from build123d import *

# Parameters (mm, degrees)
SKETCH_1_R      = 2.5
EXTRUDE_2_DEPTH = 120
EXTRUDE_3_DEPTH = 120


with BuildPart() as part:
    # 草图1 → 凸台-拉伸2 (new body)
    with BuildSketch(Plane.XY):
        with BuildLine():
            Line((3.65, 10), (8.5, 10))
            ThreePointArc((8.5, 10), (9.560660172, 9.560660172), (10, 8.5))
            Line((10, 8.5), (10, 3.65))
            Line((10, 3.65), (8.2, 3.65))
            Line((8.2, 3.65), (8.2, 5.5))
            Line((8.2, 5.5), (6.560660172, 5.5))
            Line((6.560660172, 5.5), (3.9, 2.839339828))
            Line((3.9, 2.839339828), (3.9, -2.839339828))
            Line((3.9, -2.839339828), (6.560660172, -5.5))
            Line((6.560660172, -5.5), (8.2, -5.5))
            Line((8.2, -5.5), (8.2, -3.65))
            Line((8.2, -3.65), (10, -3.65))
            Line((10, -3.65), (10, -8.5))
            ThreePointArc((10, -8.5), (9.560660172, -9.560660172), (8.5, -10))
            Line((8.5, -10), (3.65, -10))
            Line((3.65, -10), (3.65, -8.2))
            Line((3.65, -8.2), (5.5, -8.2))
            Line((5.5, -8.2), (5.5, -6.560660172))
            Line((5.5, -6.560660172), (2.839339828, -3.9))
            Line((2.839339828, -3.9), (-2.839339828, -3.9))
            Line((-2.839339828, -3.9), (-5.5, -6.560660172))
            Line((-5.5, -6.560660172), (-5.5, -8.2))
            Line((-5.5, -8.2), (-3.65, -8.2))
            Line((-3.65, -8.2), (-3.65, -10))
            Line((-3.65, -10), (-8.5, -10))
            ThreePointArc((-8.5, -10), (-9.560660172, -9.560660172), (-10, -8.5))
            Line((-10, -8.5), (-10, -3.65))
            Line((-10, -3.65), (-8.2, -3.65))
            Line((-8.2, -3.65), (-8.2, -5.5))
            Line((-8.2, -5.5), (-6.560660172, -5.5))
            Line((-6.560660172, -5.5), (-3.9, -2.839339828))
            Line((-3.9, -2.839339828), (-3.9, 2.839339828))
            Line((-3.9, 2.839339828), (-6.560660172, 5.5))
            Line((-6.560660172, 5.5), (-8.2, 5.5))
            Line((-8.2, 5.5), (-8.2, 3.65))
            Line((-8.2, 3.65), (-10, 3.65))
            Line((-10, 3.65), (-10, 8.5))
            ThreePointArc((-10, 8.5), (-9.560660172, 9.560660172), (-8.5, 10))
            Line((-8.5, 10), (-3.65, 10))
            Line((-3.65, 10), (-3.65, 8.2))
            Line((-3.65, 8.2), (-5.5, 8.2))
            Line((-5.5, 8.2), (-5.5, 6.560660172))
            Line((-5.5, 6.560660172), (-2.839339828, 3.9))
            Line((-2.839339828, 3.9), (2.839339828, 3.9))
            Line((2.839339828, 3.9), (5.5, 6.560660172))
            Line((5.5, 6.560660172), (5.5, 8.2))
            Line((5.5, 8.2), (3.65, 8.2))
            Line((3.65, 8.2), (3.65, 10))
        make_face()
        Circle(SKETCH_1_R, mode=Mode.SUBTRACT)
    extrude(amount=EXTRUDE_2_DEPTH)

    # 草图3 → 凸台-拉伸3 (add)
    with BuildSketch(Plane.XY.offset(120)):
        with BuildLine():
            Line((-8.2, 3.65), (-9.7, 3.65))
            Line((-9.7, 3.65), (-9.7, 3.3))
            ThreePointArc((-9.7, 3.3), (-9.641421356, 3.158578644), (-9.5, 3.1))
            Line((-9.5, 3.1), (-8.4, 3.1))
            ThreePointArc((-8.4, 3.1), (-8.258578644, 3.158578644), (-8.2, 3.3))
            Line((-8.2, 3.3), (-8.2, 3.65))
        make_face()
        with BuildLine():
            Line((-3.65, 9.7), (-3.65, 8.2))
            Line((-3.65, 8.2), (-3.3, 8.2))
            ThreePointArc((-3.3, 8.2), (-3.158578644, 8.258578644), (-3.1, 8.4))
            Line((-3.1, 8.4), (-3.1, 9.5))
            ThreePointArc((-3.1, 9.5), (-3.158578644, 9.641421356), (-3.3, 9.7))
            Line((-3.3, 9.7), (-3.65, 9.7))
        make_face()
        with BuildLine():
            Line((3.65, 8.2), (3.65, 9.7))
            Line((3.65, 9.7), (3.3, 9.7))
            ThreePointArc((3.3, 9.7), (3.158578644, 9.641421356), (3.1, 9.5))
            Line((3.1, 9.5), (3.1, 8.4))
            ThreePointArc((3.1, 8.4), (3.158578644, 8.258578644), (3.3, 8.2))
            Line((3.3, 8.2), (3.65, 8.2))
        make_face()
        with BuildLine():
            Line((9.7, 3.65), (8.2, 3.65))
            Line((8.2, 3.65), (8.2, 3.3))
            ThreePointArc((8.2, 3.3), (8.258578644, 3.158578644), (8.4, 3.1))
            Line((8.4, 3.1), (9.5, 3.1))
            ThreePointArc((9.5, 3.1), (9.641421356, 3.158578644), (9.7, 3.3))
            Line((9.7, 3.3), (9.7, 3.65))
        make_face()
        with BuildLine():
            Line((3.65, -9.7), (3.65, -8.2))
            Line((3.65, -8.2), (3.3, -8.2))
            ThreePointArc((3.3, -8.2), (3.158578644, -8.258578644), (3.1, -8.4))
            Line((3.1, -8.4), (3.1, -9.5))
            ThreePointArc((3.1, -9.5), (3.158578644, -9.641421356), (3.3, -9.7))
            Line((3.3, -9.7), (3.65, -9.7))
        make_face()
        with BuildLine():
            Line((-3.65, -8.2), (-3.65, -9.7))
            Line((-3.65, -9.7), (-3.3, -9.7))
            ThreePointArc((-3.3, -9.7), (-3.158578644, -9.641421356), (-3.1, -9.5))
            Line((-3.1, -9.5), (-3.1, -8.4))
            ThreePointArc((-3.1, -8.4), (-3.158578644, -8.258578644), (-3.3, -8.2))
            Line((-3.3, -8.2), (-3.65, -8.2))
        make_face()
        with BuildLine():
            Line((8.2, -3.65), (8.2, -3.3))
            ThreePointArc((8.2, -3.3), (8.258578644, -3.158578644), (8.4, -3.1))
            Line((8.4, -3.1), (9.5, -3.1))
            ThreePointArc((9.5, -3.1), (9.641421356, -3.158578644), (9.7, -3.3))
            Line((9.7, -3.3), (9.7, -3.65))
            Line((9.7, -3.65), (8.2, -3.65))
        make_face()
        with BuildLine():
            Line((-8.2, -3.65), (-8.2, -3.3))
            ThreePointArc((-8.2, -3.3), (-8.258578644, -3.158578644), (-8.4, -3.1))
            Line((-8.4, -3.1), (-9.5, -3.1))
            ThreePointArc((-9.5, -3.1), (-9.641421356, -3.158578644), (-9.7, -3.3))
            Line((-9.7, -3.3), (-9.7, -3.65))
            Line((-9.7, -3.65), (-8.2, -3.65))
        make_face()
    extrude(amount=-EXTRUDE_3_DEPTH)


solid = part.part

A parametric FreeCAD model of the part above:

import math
import FreeCAD as App
import Part
import Sketcher
Q = App.Units.Quantity

doc = App.newDocument("Part")
params = doc.addObject("Spreadsheet::Sheet", "Params")
for row, (alias, value) in enumerate([
    ("sketch1_diameter", "5 mm"),
    ("sketch1_radius", "1.5 mm"),
    ("sketch1_width", "1.8 mm"),
    ("sketch1_width2", "4.85 mm"),
    ("pad1_length", "120 mm"),
    ("sketch2_radius", "0.2 mm"),
    ("sketch2_width", "1.5 mm"),
    ("sketch2_width2", "0.35 mm"),
    ("pad2_length", "120 mm"),
], start=1):
    params.set(f"A{row}", alias)
    params.set(f"B{row}", "=" + value)
    params.setAlias(f"B{row}", alias)

body = doc.addObject("PartDesign::Body", "Body")

sketch1 = doc.addObject("Sketcher::SketchObject", "Sketch")
body.addObject(sketch1)
sketch1.AttachmentSupport = (doc.XY_Plane, [""])
sketch1.MapMode = "FlatFace"
sketch1.addGeometry([
    Part.LineSegment(App.Vector(8.5, 10, 0), App.Vector(3.6, 10, 0)),
    Part.LineSegment(App.Vector(3.6, 10, 0), App.Vector(3.6, 8.2, 0)),
    Part.LineSegment(App.Vector(3.6, 8.2, 0), App.Vector(5.5, 8.2, 0)),
    Part.LineSegment(App.Vector(5.5, 8.2, 0), App.Vector(5.5, 6.6, 0)),
    Part.LineSegment(App.Vector(5.5, 6.6, 0), App.Vector(2.8, 3.9, 0)),
    Part.LineSegment(App.Vector(2.8, 3.9, 0), App.Vector(-2.8, 3.9, 0)),
    Part.LineSegment(App.Vector(-2.8, 3.9, 0), App.Vector(-5.5, 6.6, 0)),
    Part.LineSegment(App.Vector(-5.5, 6.6, 0), App.Vector(-5.5, 8.2, 0)),
    Part.LineSegment(App.Vector(-5.5, 8.2, 0), App.Vector(-3.6, 8.2, 0)),
    Part.LineSegment(App.Vector(-3.6, 8.2, 0), App.Vector(-3.6, 10, 0)),
    Part.LineSegment(App.Vector(-3.6, 10, 0), App.Vector(-8.5, 10, 0)),
    Part.ArcOfCircle(Part.Circle(App.Vector(-8.5, 8.5, 0), App.Vector(0, 0, 1), 1.5), math.radians(90), math.radians(180)),
    Part.LineSegment(App.Vector(-10, 8.5, 0), App.Vector(-10, 3.6, 0)),
    Part.LineSegment(App.Vector(-10, 3.6, 0), App.Vector(-8.2, 3.6, 0)),
    Part.LineSegment(App.Vector(-8.2, 3.6, 0), App.Vector(-8.2, 5.5, 0)),
    Part.LineSegment(App.Vector(-8.2, 5.5, 0), App.Vector(-6.6, 5.5, 0)),
    Part.LineSegment(App.Vector(-6.6, 5.5, 0), App.Vector(-3.9, 2.8, 0)),
    Part.LineSegment(App.Vector(-3.9, 2.8, 0), App.Vector(-3.9, -2.8, 0)),
    Part.LineSegment(App.Vector(-3.9, -2.8, 0), App.Vector(-6.6, -5.5, 0)),
    Part.LineSegment(App.Vector(-6.6, -5.5, 0), App.Vector(-8.2, -5.5, 0)),
    Part.LineSegment(App.Vector(-8.2, -5.5, 0), App.Vector(-8.2, -3.6, 0)),
    Part.LineSegment(App.Vector(-8.2, -3.6, 0), App.Vector(-10, -3.6, 0)),
    Part.LineSegment(App.Vector(-10, -3.6, 0), App.Vector(-10, -8.5, 0)),
    Part.ArcOfCircle(Part.Circle(App.Vector(-8.5, -8.5, 0), App.Vector(0, 0, 1), 1.5), math.radians(180), math.radians(270)),
    Part.LineSegment(App.Vector(-8.5, -10, 0), App.Vector(-3.6, -10, 0)),
    Part.LineSegment(App.Vector(-3.6, -10, 0), App.Vector(-3.6, -8.2, 0)),
    Part.LineSegment(App.Vector(-3.6, -8.2, 0), App.Vector(-5.5, -8.2, 0)),
    Part.LineSegment(App.Vector(-5.5, -8.2, 0), App.Vector(-5.5, -6.6, 0)),
    Part.LineSegment(App.Vector(-5.5, -6.6, 0), App.Vector(-2.8, -3.9, 0)),
    Part.LineSegment(App.Vector(-2.8, -3.9, 0), App.Vector(2.8, -3.9, 0)),
    Part.LineSegment(App.Vector(2.8, -3.9, 0), App.Vector(5.5, -6.6, 0)),
    Part.LineSegment(App.Vector(5.5, -6.6, 0), App.Vector(5.5, -8.2, 0)),
    Part.LineSegment(App.Vector(5.5, -8.2, 0), App.Vector(3.6, -8.2, 0)),
    Part.LineSegment(App.Vector(3.6, -8.2, 0), App.Vector(3.6, -10, 0)),
    Part.LineSegment(App.Vector(3.6, -10, 0), App.Vector(8.5, -10, 0)),
    Part.ArcOfCircle(Part.Circle(App.Vector(8.5, -8.5, 0), App.Vector(0, 0, 1), 1.5), math.radians(-90), math.radians(0)),
    Part.LineSegment(App.Vector(10, -8.5, 0), App.Vector(10, -3.6, 0)),
    Part.LineSegment(App.Vector(10, -3.6, 0), App.Vector(8.2, -3.6, 0)),
    Part.LineSegment(App.Vector(8.2, -3.6, 0), App.Vector(8.2, -5.5, 0)),
    Part.LineSegment(App.Vector(8.2, -5.5, 0), App.Vector(6.6, -5.5, 0)),
    Part.LineSegment(App.Vector(6.6, -5.5, 0), App.Vector(3.9, -2.8, 0)),
    Part.LineSegment(App.Vector(3.9, -2.8, 0), App.Vector(3.9, 2.8, 0)),
    Part.LineSegment(App.Vector(3.9, 2.8, 0), App.Vector(6.6, 5.5, 0)),
    Part.LineSegment(App.Vector(6.6, 5.5, 0), App.Vector(8.2, 5.5, 0)),
    Part.LineSegment(App.Vector(8.2, 5.5, 0), App.Vector(8.2, 3.6, 0)),
    Part.LineSegment(App.Vector(8.2, 3.6, 0), App.Vector(10, 3.6, 0)),
    Part.LineSegment(App.Vector(10, 3.6, 0), App.Vector(10, 8.5, 0)),
    Part.ArcOfCircle(Part.Circle(App.Vector(8.5, 8.5, 0), App.Vector(0, 0, 1), 1.5), math.radians(0), math.radians(90)),
    Part.Circle(App.Vector(0, 0, 0), App.Vector(0, 0, 1), 2.5),
], False)
sketch1.addConstraint([
    Sketcher.Constraint("Coincident", 0, 2, 1, 1),
    Sketcher.Constraint("Coincident", 1, 2, 2, 1),
    Sketcher.Constraint("Coincident", 2, 2, 3, 1),
    Sketcher.Constraint("Coincident", 3, 2, 4, 1),
    Sketcher.Constraint("Coincident", 4, 2, 5, 1),
    Sketcher.Constraint("Coincident", 5, 2, 6, 1),
    Sketcher.Constraint("Coincident", 6, 2, 7, 1),
    Sketcher.Constraint("Coincident", 7, 2, 8, 1),
    Sketcher.Constraint("Coincident", 8, 2, 9, 1),
    Sketcher.Constraint("Coincident", 9, 2, 10, 1),
    Sketcher.Constraint("Tangent", 10, 2, 11, 1),
    Sketcher.Constraint("Tangent", 11, 2, 12, 1),
    Sketcher.Constraint("Coincident", 12, 2, 13, 1),
    Sketcher.Constraint("Coincident", 13, 2, 14, 1),
    Sketcher.Constraint("Coincident", 14, 2, 15, 1),
    Sketcher.Constraint("Coincident", 15, 2, 16, 1),
    Sketcher.Constraint("Coincident", 16, 2, 17, 1),
    Sketcher.Constraint("Coincident", 17, 2, 18, 1),
    Sketcher.Constraint("Coincident", 18, 2, 19, 1),
    Sketcher.Constraint("Coincident", 19, 2, 20, 1),
    Sketcher.Constraint("Coincident", 20, 2, 21, 1),
    Sketcher.Constraint("Coincident", 21, 2, 22, 1),
    Sketcher.Constraint("Tangent", 22, 2, 23, 1),
    Sketcher.Constraint("Tangent", 23, 2, 24, 1),
    Sketcher.Constraint("Coincident", 24, 2, 25, 1),
    Sketcher.Constraint("Coincident", 25, 2, 26, 1),
    Sketcher.Constraint("Coincident", 26, 2, 27, 1),
    Sketcher.Constraint("Coincident", 27, 2, 28, 1),
    Sketcher.Constraint("Coincident", 28, 2, 29, 1),
    Sketcher.Constraint("Coincident", 29, 2, 30, 1),
    Sketcher.Constraint("Coincident", 30, 2, 31, 1),
    Sketcher.Constraint("Coincident", 31, 2, 32, 1),
    Sketcher.Constraint("Coincident", 32, 2, 33, 1),
    Sketcher.Constraint("Coincident", 33, 2, 34, 1),
    Sketcher.Constraint("Tangent", 34, 2, 35, 1),
    Sketcher.Constraint("Tangent", 35, 2, 36, 1),
    Sketcher.Constraint("Coincident", 36, 2, 37, 1),
    Sketcher.Constraint("Coincident", 37, 2, 38, 1),
    Sketcher.Constraint("Coincident", 38, 2, 39, 1),
    Sketcher.Constraint("Coincident", 39, 2, 40, 1),
    Sketcher.Constraint("Coincident", 40, 2, 41, 1),
    Sketcher.Constraint("Coincident", 41, 2, 42, 1),
    Sketcher.Constraint("Coincident", 42, 2, 43, 1),
    Sketcher.Constraint("Coincident", 43, 2, 44, 1),
    Sketcher.Constraint("Coincident", 44, 2, 45, 1),
    Sketcher.Constraint("Coincident", 45, 2, 46, 1),
    Sketcher.Constraint("Tangent", 46, 2, 47, 1),
    Sketcher.Constraint("Tangent", 47, 2, 0, 1),
    Sketcher.Constraint("Horizontal", 0),
    Sketcher.Constraint("Vertical", 1),
    Sketcher.Constraint("Horizontal", 2),
    Sketcher.Constraint("Vertical", 3),
    Sketcher.Constraint("Horizontal", 5),
    Sketcher.Constraint("Vertical", 7),
    Sketcher.Constraint("Horizontal", 8),
    Sketcher.Constraint("Vertical", 9),
    Sketcher.Constraint("Horizontal", 10),
    Sketcher.Constraint("Vertical", 12),
    Sketcher.Constraint("Horizontal", 13),
    Sketcher.Constraint("Vertical", 14),
    Sketcher.Constraint("Horizontal", 15),
    Sketcher.Constraint("Vertical", 17),
    Sketcher.Constraint("Horizontal", 19),
    Sketcher.Constraint("Vertical", 20),
    Sketcher.Constraint("Horizontal", 21),
    Sketcher.Constraint("Vertical", 22),
    Sketcher.Constraint("Horizontal", 24),
    Sketcher.Constraint("Vertical", 25),
    Sketcher.Constraint("Horizontal", 26),
    Sketcher.Constraint("Vertical", 27),
    Sketcher.Constraint("Horizontal", 29),
    Sketcher.Constraint("Vertical", 31),
    Sketcher.Constraint("Horizontal", 32),
    Sketcher.Constraint("Vertical", 33),
    Sketcher.Constraint("Horizontal", 34),
    Sketcher.Constraint("Vertical", 36),
    Sketcher.Constraint("Horizontal", 37),
    Sketcher.Constraint("Vertical", 38),
    Sketcher.Constraint("Horizontal", 39),
    Sketcher.Constraint("Vertical", 41),
    Sketcher.Constraint("Horizontal", 43),
    Sketcher.Constraint("Vertical", 44),
    Sketcher.Constraint("Horizontal", 45),
    Sketcher.Constraint("Vertical", 46),
    Sketcher.Constraint("Coincident", 48, 3, -1, 1),
    Sketcher.Constraint("Equal", 11, 23),
    Sketcher.Constraint("Equal", 23, 35),
    Sketcher.Constraint("Equal", 35, 47),
    Sketcher.Constraint("Symmetric", 11, 3, 35, 3, -1, 1),
    Sketcher.Constraint("Symmetric", 23, 3, 47, 3, -1, 1),
    Sketcher.Constraint("Symmetric", 1, 2, 25, 2, -1, 1),
    Sketcher.Constraint("Symmetric", 3, 2, 27, 2, -1, 1),
    Sketcher.Constraint("Symmetric", 4, 2, 28, 2, -1, 1),
    Sketcher.Constraint("Symmetric", 6, 2, 30, 2, -1, 1),
    Sketcher.Constraint("Symmetric", 8, 2, 32, 2, -1, 1),
    Sketcher.Constraint("Symmetric", 13, 2, 37, 2, -1, 1),
    Sketcher.Constraint("Symmetric", 15, 2, 39, 2, -1, 1),
    Sketcher.Constraint("Symmetric", 16, 2, 40, 2, -1, 1),
    Sketcher.Constraint("Symmetric", 18, 2, 42, 2, -1, 1),
    Sketcher.Constraint("Symmetric", 20, 2, 44, 2, -1, 1),
    Sketcher.Constraint("Symmetric", 23, 3, 35, 3, -2),
    Sketcher.Constraint("Symmetric", 3, 2, 6, 2, -2),
    Sketcher.Constraint("Symmetric", 1, 2, 8, 2, -2),
    Sketcher.Constraint("Symmetric", 20, 2, 37, 2, -2),
    Sketcher.Constraint("Symmetric", 18, 2, 39, 2, -2),
    Sketcher.Constraint("Perpendicular", 4, 6),
    Sketcher.Constraint("Parallel", 6, 16),
    Sketcher.Constraint("Perpendicular", 16, 18),
    Sketcher.Constraint("Perpendicular", 28, 30),
    Sketcher.Constraint("Perpendicular", 40, 42),
    Sketcher.Constraint("Horizontal", 17, 2, 40, 2),
    Sketcher.Constraint("Equal", 45, 1),
    Sketcher.Constraint("Equal", 43, 3),
    Sketcher.Constraint("Equal", 34, 12),
    Sketcher.Constraint("Equal", 32, 14),
    Sketcher.Constraint("Equal", 29, 17),
    Sketcher.Constraint("Equal", 6, 16),
    Sketcher.Constraint("Diameter", 48, Q("5 mm")),
    Sketcher.Constraint("Radius", 11, Q("1.5 mm")),
    Sketcher.Constraint("DistanceX", 13, 1, 13, 2, Q("1.8 mm")),
    Sketcher.Constraint("DistanceY", -1, 1, 0, 2, Q("10 mm")),
    Sketcher.Constraint("DistanceX", 2, 2, 47, 3, Q("3 mm")),
    Sketcher.Constraint("DistanceX", 0, 2, 0, 1, Q("4.85 mm")),
    Sketcher.Constraint("DistanceY", -1, 1, 4, 2, Q("3.9 mm")),
    Sketcher.Constraint("DistanceX", 5, 2, 5, 1, Q("5.67868 mm")),
])
sketch1.setExpression("Constraints[117]", "Params.sketch1_diameter")
sketch1.setExpression("Constraints[118]", "Params.sketch1_radius")
sketch1.setExpression("Constraints[119]", "Params.sketch1_width")
sketch1.setExpression("Constraints[122]", "Params.sketch1_width2")
pad1 = doc.addObject("PartDesign::Pad", "Pad")
body.addObject(pad1)
pad1.Profile = sketch1
pad1.setExpression("Length", "Params.pad1_length")

sketch2 = doc.addObject("Sketcher::SketchObject", "Sketch001")
body.addObject(sketch2)
sketch2.AttachmentSupport = (doc.XY_Plane, [""])
sketch2.MapMode = "FlatFace"
sketch2.AttachmentOffset = App.Placement(App.Vector(0, 0, 120), App.Rotation())
sketch2.addGeometry([
    Part.LineSegment(App.Vector(-8.2, 3.65, 0), App.Vector(-9.7, 3.65, 0)),
    Part.LineSegment(App.Vector(-9.7, 3.65, 0), App.Vector(-9.7, 3.3, 0)),
    Part.ArcOfCircle(Part.Circle(App.Vector(-9.5, 3.3, 0), App.Vector(0, 0, 1), 0.2), math.radians(-180), math.radians(-90)),
    Part.LineSegment(App.Vector(-9.5, 3.1, 0), App.Vector(-8.4, 3.1, 0)),
    Part.ArcOfCircle(Part.Circle(App.Vector(-8.4, 3.3, 0), App.Vector(0, 0, 1), 0.2), math.radians(-90), math.radians(0)),
    Part.LineSegment(App.Vector(-8.2, 3.3, 0), App.Vector(-8.2, 3.65, 0)),
    Part.LineSegment(App.Vector(-3.65, 9.7, 0), App.Vector(-3.65, 8.2, 0)),
    Part.LineSegment(App.Vector(-3.65, 8.2, 0), App.Vector(-3.3, 8.2, 0)),
    Part.ArcOfCircle(Part.Circle(App.Vector(-3.3, 8.4, 0), App.Vector(0, 0, 1), 0.2), math.radians(-90), math.radians(0)),
    Part.LineSegment(App.Vector(-3.1, 8.4, 0), App.Vector(-3.1, 9.5, 0)),
    Part.ArcOfCircle(Part.Circle(App.Vector(-3.3, 9.5, 0), App.Vector(0, 0, 1), 0.2), math.radians(0), math.radians(90)),
    Part.LineSegment(App.Vector(-3.3, 9.7, 0), App.Vector(-3.65, 9.7, 0)),
    Part.LineSegment(App.Vector(3.65, 8.2, 0), App.Vector(3.65, 9.7, 0)),
    Part.LineSegment(App.Vector(3.65, 9.7, 0), App.Vector(3.3, 9.7, 0)),
    Part.ArcOfCircle(Part.Circle(App.Vector(3.3, 9.5, 0), App.Vector(0, 0, 1), 0.2), math.radians(90), math.radians(180)),
    Part.LineSegment(App.Vector(3.1, 9.5, 0), App.Vector(3.1, 8.4, 0)),
    Part.ArcOfCircle(Part.Circle(App.Vector(3.3, 8.4, 0), App.Vector(0, 0, 1), 0.2), math.radians(-180), math.radians(-90)),
    Part.LineSegment(App.Vector(3.3, 8.2, 0), App.Vector(3.65, 8.2, 0)),
    Part.LineSegment(App.Vector(9.7, 3.65, 0), App.Vector(8.2, 3.65, 0)),
    Part.LineSegment(App.Vector(8.2, 3.65, 0), App.Vector(8.2, 3.3, 0)),
    Part.ArcOfCircle(Part.Circle(App.Vector(8.4, 3.3, 0), App.Vector(0, 0, 1), 0.2), math.radians(-180), math.radians(-90)),
    Part.LineSegment(App.Vector(8.4, 3.1, 0), App.Vector(9.5, 3.1, 0)),
    Part.ArcOfCircle(Part.Circle(App.Vector(9.5, 3.3, 0), App.Vector(0, 0, 1), 0.2), math.radians(-90), math.radians(0)),
    Part.LineSegment(App.Vector(9.7, 3.3, 0), App.Vector(9.7, 3.65, 0)),
    Part.LineSegment(App.Vector(3.65, -9.7, 0), App.Vector(3.65, -8.2, 0)),
    Part.LineSegment(App.Vector(3.65, -8.2, 0), App.Vector(3.3, -8.2, 0)),
    Part.ArcOfCircle(Part.Circle(App.Vector(3.3, -8.4, 0), App.Vector(0, 0, 1), 0.2), math.radians(90), math.radians(180)),
    Part.LineSegment(App.Vector(3.1, -8.4, 0), App.Vector(3.1, -9.5, 0)),
    Part.ArcOfCircle(Part.Circle(App.Vector(3.3, -9.5, 0), App.Vector(0, 0, 1), 0.2), math.radians(-180), math.radians(-90)),
    Part.LineSegment(App.Vector(3.3, -9.7, 0), App.Vector(3.65, -9.7, 0)),
    Part.LineSegment(App.Vector(-3.65, -8.2, 0), App.Vector(-3.65, -9.7, 0)),
    Part.LineSegment(App.Vector(-3.65, -9.7, 0), App.Vector(-3.3, -9.7, 0)),
    Part.ArcOfCircle(Part.Circle(App.Vector(-3.3, -9.5, 0), App.Vector(0, 0, 1), 0.2), math.radians(-90), math.radians(0)),
    Part.LineSegment(App.Vector(-3.1, -9.5, 0), App.Vector(-3.1, -8.4, 0)),
    Part.ArcOfCircle(Part.Circle(App.Vector(-3.3, -8.4, 0), App.Vector(0, 0, 1), 0.2), math.radians(0), math.radians(90)),
    Part.LineSegment(App.Vector(-3.3, -8.2, 0), App.Vector(-3.65, -8.2, 0)),
    Part.LineSegment(App.Vector(8.2, -3.3, 0), App.Vector(8.2, -3.65, 0)),
    Part.LineSegment(App.Vector(8.2, -3.65, 0), App.Vector(9.7, -3.65, 0)),
    Part.LineSegment(App.Vector(9.7, -3.65, 0), App.Vector(9.7, -3.3, 0)),
    Part.ArcOfCircle(Part.Circle(App.Vector(9.5, -3.3, 0), App.Vector(0, 0, 1), 0.2), math.radians(0), math.radians(90)),
    Part.LineSegment(App.Vector(9.5, -3.1, 0), App.Vector(8.4, -3.1, 0)),
    Part.ArcOfCircle(Part.Circle(App.Vector(8.4, -3.3, 0), App.Vector(0, 0, 1), 0.2), math.radians(90), math.radians(180)),
    Part.LineSegment(App.Vector(-8.2, -3.65, 0), App.Vector(-8.2, -3.3, 0)),
    Part.ArcOfCircle(Part.Circle(App.Vector(-8.4, -3.3, 0), App.Vector(0, 0, 1), 0.2), math.radians(0), math.radians(90)),
    Part.LineSegment(App.Vector(-8.4, -3.1, 0), App.Vector(-9.5, -3.1, 0)),
    Part.ArcOfCircle(Part.Circle(App.Vector(-9.5, -3.3, 0), App.Vector(0, 0, 1), 0.2), math.radians(90), math.radians(180)),
    Part.LineSegment(App.Vector(-9.7, -3.3, 0), App.Vector(-9.7, -3.65, 0)),
    Part.LineSegment(App.Vector(-9.7, -3.65, 0), App.Vector(-8.2, -3.65, 0)),
], False)
sketch2.addConstraint([
    Sketcher.Constraint("Coincident", 0, 2, 1, 1),
    Sketcher.Constraint("Tangent", 1, 2, 2, 1),
    Sketcher.Constraint("Tangent", 2, 2, 3, 1),
    Sketcher.Constraint("Tangent", 3, 2, 4, 1),
    Sketcher.Constraint("Tangent", 4, 2, 5, 1),
    Sketcher.Constraint("Coincident", 5, 2, 0, 1),
    Sketcher.Constraint("Coincident", 6, 2, 7, 1),
    Sketcher.Constraint("Tangent", 7, 2, 8, 1),
    Sketcher.Constraint("Tangent", 8, 2, 9, 1),
    Sketcher.Constraint("Tangent", 9, 2, 10, 1),
    Sketcher.Constraint("Tangent", 10, 2, 11, 1),
    Sketcher.Constraint("Coincident", 11, 2, 6, 1),
    Sketcher.Constraint("Coincident", 12, 2, 13, 1),
    Sketcher.Constraint("Tangent", 13, 2, 14, 1),
    Sketcher.Constraint("Tangent", 14, 2, 15, 1),
    Sketcher.Constraint("Tangent", 15, 2, 16, 1),
    Sketcher.Constraint("Tangent", 16, 2, 17, 1),
    Sketcher.Constraint("Coincident", 17, 2, 12, 1),
    Sketcher.Constraint("Coincident", 18, 2, 19, 1),
    Sketcher.Constraint("Tangent", 19, 2, 20, 1),
    Sketcher.Constraint("Tangent", 20, 2, 21, 1),
    Sketcher.Constraint("Tangent", 21, 2, 22, 1),
    Sketcher.Constraint("Tangent", 22, 2, 23, 1),
    Sketcher.Constraint("Coincident", 23, 2, 18, 1),
    Sketcher.Constraint("Coincident", 24, 2, 25, 1),
    Sketcher.Constraint("Tangent", 25, 2, 26, 1),
    Sketcher.Constraint("Tangent", 26, 2, 27, 1),
    Sketcher.Constraint("Tangent", 27, 2, 28, 1),
    Sketcher.Constraint("Tangent", 28, 2, 29, 1),
    Sketcher.Constraint("Coincident", 29, 2, 24, 1),
    Sketcher.Constraint("Coincident", 30, 2, 31, 1),
    Sketcher.Constraint("Tangent", 31, 2, 32, 1),
    Sketcher.Constraint("Tangent", 32, 2, 33, 1),
    Sketcher.Constraint("Tangent", 33, 2, 34, 1),
    Sketcher.Constraint("Tangent", 34, 2, 35, 1),
    Sketcher.Constraint("Coincident", 35, 2, 30, 1),
    Sketcher.Constraint("Coincident", 36, 2, 37, 1),
    Sketcher.Constraint("Coincident", 37, 2, 38, 1),
    Sketcher.Constraint("Tangent", 38, 2, 39, 1),
    Sketcher.Constraint("Tangent", 39, 2, 40, 1),
    Sketcher.Constraint("Tangent", 40, 2, 41, 1),
    Sketcher.Constraint("Tangent", 41, 2, 36, 1),
    Sketcher.Constraint("Tangent", 42, 2, 43, 1),
    Sketcher.Constraint("Tangent", 43, 2, 44, 1),
    Sketcher.Constraint("Tangent", 44, 2, 45, 1),
    Sketcher.Constraint("Tangent", 45, 2, 46, 1),
    Sketcher.Constraint("Coincident", 46, 2, 47, 1),
    Sketcher.Constraint("Coincident", 47, 2, 42, 1),
    Sketcher.Constraint("Horizontal", 0),
    Sketcher.Constraint("Vertical", 1),
    Sketcher.Constraint("Horizontal", 3),
    Sketcher.Constraint("Vertical", 5),
    Sketcher.Constraint("Vertical", 6),
    Sketcher.Constraint("Horizontal", 7),
    Sketcher.Constraint("Vertical", 9),
    Sketcher.Constraint("Horizontal", 11),
    Sketcher.Constraint("Vertical", 12),
    Sketcher.Constraint("Horizontal", 13),
    Sketcher.Constraint("Vertical", 15),
    Sketcher.Constraint("Horizontal", 17),
    Sketcher.Constraint("Horizontal", 18),
    Sketcher.Constraint("Vertical", 19),
    Sketcher.Constraint("Horizontal", 21),
    Sketcher.Constraint("Vertical", 23),
    Sketcher.Constraint("Vertical", 24),
    Sketcher.Constraint("Horizontal", 25),
    Sketcher.Constraint("Vertical", 27),
    Sketcher.Constraint("Horizontal", 29),
    Sketcher.Constraint("Vertical", 30),
    Sketcher.Constraint("Horizontal", 31),
    Sketcher.Constraint("Vertical", 33),
    Sketcher.Constraint("Horizontal", 35),
    Sketcher.Constraint("Vertical", 36),
    Sketcher.Constraint("Horizontal", 37),
    Sketcher.Constraint("Vertical", 38),
    Sketcher.Constraint("Horizontal", 40),
    Sketcher.Constraint("Vertical", 42),
    Sketcher.Constraint("Horizontal", 44),
    Sketcher.Constraint("Vertical", 46),
    Sketcher.Constraint("Horizontal", 47),
    Sketcher.Constraint("Equal", 2, 4),
    Sketcher.Constraint("Equal", 4, 8),
    Sketcher.Constraint("Equal", 8, 10),
    Sketcher.Constraint("Equal", 10, 14),
    Sketcher.Constraint("Equal", 14, 16),
    Sketcher.Constraint("Equal", 16, 20),
    Sketcher.Constraint("Equal", 20, 22),
    Sketcher.Constraint("Equal", 22, 26),
    Sketcher.Constraint("Equal", 26, 28),
    Sketcher.Constraint("Equal", 28, 32),
    Sketcher.Constraint("Equal", 32, 34),
    Sketcher.Constraint("Equal", 34, 39),
    Sketcher.Constraint("Equal", 39, 41),
    Sketcher.Constraint("Equal", 41, 43),
    Sketcher.Constraint("Equal", 43, 45),
    Sketcher.Constraint("Symmetric", 8, 3, 26, 3, -1, 1),
    Sketcher.Constraint("Symmetric", 14, 3, 32, 3, -1, 1),
    Sketcher.Constraint("Symmetric", 2, 3, 39, 3, -1, 1),
    Sketcher.Constraint("Symmetric", 20, 3, 43, 3, -1, 1),
    Sketcher.Constraint("Symmetric", 11, 2, 29, 2, -1, 1),
    Sketcher.Constraint("Symmetric", 17, 2, 35, 2, -1, 1),
    Sketcher.Constraint("Symmetric", 5, 2, 36, 2, -1, 1),
    Sketcher.Constraint("Symmetric", 23, 2, 46, 2, -1, 1),
    Sketcher.Constraint("Symmetric", 10, 3, 14, 3, -2),
    Sketcher.Constraint("Symmetric", 4, 3, 20, 3, -2),
    Sketcher.Constraint("Symmetric", 6, 2, 17, 2, -2),
    Sketcher.Constraint("Symmetric", 0, 2, 23, 2, -2),
    Sketcher.Constraint("Equal", 35, 1),
    Sketcher.Constraint("Equal", 47, 6),
    Sketcher.Constraint("Radius", 2, Q("0.2 mm")),
    Sketcher.Constraint("DistanceX", 0, 2, 0, 1, Q("1.5 mm")),
    Sketcher.Constraint("DistanceX", 7, 1, 7, 2, Q("0.35 mm")),
    Sketcher.Constraint("DistanceX", 2, 3, -1, 1, Q("9.5 mm")),
    Sketcher.Constraint("DistanceY", -1, 1, 2, 3, Q("3.3 mm")),
    Sketcher.Constraint("DistanceX", 8, 3, -1, 1, Q("3.3 mm")),
    Sketcher.Constraint("DistanceY", -1, 1, 8, 3, Q("8.4 mm")),
])
sketch2.setExpression("Constraints[109]", "Params.sketch2_radius")
sketch2.setExpression("Constraints[110]", "Params.sketch2_width")
sketch2.setExpression("Constraints[111]", "Params.sketch2_width2")
pad2 = doc.addObject("PartDesign::Pad", "Pad001")
body.addObject(pad2)
pad2.Profile = sketch2
pad2.setExpression("Length", "Params.pad2_length")
pad2.Reversed = True

doc.recompute()
